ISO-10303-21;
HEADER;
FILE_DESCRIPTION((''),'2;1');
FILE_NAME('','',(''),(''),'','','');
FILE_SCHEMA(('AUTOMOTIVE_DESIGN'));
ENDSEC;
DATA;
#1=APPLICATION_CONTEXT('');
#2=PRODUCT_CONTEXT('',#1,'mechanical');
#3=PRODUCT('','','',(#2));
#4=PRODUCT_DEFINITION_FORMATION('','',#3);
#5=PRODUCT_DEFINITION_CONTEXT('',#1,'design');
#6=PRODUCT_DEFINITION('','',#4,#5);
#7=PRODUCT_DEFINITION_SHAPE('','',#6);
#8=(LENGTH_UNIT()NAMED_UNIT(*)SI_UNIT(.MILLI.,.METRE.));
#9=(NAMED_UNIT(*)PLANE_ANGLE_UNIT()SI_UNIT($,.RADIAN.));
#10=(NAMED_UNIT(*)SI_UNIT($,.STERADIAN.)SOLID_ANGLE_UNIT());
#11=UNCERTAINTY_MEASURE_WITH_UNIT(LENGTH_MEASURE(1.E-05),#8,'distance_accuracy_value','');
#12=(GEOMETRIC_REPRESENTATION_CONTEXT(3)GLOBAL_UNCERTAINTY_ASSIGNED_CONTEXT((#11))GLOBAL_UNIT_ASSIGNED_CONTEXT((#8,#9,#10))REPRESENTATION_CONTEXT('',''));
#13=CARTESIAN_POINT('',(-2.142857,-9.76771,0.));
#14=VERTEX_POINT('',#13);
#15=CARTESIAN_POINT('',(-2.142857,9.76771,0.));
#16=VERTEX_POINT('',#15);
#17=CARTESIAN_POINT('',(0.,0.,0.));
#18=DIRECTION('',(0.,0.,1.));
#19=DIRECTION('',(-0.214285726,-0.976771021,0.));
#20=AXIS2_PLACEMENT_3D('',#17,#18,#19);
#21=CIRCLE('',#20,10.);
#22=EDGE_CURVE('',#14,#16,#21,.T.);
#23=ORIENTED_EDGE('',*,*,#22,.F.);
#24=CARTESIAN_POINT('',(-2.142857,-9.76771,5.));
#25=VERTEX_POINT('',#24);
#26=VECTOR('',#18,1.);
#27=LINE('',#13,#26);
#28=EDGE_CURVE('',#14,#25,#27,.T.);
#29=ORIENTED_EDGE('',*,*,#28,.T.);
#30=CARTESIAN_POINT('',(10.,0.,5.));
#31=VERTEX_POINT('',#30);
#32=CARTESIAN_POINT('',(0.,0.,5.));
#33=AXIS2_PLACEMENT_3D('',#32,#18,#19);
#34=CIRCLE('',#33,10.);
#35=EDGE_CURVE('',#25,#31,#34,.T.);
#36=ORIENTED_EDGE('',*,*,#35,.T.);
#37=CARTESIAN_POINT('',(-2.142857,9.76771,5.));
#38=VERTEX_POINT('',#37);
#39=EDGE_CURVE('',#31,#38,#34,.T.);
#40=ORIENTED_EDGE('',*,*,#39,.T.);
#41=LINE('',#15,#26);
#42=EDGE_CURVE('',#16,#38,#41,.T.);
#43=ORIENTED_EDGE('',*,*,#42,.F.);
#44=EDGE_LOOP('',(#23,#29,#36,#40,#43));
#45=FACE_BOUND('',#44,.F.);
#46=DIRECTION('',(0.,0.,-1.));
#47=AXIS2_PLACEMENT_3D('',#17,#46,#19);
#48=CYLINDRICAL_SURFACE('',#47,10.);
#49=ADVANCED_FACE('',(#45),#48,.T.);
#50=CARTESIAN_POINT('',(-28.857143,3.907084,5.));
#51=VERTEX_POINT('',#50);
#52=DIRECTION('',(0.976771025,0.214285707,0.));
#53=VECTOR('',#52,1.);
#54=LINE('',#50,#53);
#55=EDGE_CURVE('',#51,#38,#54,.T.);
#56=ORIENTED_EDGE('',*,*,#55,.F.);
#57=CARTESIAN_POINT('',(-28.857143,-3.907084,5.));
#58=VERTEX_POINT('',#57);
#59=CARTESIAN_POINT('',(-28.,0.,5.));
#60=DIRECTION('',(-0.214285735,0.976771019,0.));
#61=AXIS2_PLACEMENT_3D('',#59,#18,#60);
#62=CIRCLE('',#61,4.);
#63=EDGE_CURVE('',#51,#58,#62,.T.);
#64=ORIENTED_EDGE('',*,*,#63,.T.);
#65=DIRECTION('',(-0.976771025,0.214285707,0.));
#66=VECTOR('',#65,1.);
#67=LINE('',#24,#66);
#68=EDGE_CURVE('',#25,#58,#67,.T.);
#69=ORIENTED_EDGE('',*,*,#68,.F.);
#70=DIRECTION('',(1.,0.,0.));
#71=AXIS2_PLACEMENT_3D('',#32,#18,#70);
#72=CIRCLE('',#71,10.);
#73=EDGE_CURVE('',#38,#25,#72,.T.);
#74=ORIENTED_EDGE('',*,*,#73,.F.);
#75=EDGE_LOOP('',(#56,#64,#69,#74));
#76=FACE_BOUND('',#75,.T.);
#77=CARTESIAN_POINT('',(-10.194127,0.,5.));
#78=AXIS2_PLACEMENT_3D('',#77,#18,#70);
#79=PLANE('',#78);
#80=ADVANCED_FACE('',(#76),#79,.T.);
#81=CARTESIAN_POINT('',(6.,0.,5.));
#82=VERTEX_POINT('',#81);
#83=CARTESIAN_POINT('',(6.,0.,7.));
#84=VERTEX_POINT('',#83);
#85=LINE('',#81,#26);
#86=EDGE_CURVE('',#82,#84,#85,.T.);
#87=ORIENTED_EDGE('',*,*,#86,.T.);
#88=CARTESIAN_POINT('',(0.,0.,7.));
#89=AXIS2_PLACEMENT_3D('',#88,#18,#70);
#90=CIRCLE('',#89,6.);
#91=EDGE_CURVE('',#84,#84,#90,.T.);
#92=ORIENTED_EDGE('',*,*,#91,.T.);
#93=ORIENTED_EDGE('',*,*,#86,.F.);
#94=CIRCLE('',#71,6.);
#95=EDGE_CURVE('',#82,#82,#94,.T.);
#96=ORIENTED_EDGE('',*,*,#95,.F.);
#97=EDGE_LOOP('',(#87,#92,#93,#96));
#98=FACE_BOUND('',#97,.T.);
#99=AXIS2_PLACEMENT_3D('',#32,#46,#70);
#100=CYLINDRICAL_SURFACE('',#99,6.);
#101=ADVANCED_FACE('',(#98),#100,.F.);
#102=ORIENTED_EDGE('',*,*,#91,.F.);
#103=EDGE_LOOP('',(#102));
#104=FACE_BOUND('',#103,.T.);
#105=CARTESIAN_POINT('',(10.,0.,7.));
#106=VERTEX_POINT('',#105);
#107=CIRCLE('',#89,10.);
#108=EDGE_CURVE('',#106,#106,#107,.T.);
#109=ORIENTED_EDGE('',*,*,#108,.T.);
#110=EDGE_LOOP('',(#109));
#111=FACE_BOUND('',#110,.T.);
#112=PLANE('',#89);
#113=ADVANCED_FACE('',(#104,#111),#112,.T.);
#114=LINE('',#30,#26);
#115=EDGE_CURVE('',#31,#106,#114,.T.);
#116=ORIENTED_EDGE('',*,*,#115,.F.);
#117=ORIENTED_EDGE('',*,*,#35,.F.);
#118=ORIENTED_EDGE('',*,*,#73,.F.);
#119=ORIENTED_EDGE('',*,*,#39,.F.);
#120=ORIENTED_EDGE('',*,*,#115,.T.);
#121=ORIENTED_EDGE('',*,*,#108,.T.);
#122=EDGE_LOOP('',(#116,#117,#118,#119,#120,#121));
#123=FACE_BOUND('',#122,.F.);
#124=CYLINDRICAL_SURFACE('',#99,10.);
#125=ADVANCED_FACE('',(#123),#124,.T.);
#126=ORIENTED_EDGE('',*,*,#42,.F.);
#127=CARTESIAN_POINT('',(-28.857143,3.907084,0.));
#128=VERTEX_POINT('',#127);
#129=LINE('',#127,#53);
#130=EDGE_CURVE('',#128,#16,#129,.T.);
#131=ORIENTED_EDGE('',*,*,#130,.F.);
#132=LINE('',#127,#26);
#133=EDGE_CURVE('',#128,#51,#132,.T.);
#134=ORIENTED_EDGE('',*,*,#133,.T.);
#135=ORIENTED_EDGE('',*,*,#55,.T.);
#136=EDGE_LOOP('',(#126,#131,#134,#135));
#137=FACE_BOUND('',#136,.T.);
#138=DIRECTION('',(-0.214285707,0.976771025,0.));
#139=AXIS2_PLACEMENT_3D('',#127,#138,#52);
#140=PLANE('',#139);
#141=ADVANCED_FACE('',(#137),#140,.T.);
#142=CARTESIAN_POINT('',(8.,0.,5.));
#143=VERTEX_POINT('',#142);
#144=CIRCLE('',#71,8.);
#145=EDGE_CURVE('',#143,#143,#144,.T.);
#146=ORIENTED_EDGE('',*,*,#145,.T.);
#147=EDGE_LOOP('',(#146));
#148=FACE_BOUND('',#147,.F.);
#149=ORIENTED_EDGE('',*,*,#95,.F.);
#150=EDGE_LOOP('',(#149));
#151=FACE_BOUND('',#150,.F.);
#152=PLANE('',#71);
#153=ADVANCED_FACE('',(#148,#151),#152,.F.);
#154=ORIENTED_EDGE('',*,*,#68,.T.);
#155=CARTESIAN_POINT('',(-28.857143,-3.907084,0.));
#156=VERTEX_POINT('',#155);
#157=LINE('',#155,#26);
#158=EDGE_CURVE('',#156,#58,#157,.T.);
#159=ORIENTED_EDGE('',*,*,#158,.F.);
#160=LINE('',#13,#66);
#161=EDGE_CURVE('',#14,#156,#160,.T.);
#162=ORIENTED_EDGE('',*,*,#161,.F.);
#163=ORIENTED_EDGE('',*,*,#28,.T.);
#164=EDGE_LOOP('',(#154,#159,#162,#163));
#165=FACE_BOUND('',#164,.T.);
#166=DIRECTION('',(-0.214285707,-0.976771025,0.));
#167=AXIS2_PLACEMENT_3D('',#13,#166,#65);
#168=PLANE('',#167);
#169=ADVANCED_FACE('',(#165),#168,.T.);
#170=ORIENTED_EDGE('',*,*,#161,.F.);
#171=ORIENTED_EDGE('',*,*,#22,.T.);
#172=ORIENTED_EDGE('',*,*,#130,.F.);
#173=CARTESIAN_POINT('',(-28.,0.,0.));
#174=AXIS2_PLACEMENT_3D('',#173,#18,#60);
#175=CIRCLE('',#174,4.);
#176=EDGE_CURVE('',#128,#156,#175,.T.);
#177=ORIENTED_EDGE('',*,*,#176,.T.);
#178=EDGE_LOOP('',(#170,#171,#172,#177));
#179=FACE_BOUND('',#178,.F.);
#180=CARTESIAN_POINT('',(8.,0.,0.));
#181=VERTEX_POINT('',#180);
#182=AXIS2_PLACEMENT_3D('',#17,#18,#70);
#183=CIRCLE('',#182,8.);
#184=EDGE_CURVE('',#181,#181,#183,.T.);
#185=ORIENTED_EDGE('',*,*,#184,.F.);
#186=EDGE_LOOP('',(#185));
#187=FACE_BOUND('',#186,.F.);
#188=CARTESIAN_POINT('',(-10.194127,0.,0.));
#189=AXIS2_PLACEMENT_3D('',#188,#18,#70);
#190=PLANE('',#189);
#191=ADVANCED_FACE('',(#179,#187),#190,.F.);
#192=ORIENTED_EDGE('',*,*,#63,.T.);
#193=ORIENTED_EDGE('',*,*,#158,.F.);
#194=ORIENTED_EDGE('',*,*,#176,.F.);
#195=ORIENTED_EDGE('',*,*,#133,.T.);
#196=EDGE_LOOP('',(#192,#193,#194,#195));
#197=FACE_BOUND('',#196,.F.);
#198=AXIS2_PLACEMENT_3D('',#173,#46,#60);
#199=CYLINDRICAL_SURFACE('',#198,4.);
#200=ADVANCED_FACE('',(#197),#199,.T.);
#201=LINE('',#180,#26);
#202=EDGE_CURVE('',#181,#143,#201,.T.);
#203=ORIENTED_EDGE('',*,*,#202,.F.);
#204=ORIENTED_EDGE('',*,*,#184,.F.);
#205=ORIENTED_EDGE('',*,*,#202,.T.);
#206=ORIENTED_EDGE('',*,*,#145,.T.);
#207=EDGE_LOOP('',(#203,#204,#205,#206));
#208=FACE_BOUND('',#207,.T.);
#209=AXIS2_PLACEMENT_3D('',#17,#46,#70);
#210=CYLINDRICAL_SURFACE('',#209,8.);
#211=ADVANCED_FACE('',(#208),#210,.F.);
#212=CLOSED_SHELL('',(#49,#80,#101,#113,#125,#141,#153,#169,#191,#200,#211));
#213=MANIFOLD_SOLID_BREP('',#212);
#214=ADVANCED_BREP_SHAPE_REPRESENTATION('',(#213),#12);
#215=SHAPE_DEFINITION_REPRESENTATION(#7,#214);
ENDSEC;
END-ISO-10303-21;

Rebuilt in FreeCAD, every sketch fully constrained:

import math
import FreeCAD as App
import Part
import Sketcher

V = App.Vector

doc = App.newDocument("Part")
body = doc.addObject("PartDesign::Body", "Body")

# Sketch on XY plane
sketch1 = doc.addObject("Sketcher::SketchObject", "Sketch")
body.addObject(sketch1)
sketch1.AttachmentSupport = (doc.XY_Plane, [""])
sketch1.MapMode = "FlatFace"
sketch1.addGeometry([
    Part.ArcOfCircle(Part.Circle(V(0, 0, 0), V(0, 0, 1), 10), math.radians(-102), math.radians(102)),  # 0
    Part.LineSegment(V(-2.1, 9.8, 0), V(-28.9, 3.9, 0)),  # 1
    Part.ArcOfCircle(Part.Circle(V(-28, 0, 0), V(0, 0, 1), 4), math.radians(102), math.radians(258)),  # 2
    Part.LineSegment(V(-28.9, -3.9, 0), V(-2.1, -9.8, 0)),  # 3
    Part.Circle(V(0, 0, 0), V(0, 0, 1), 8),  # 4
], False)
sketch1.addConstraint([
    Sketcher.Constraint("Tangent", 0, 2, 1, 1),
    Sketcher.Constraint("Tangent", 1, 2, 2, 1),
    Sketcher.Constraint("Tangent", 2, 2, 3, 1),
    Sketcher.Constraint("Tangent", 3, 2, 0, 1),
    Sketcher.Constraint("Coincident", 0, 3, -1, 1),
    Sketcher.Constraint("Coincident", 4, 3, -1, 1),
    Sketcher.Constraint("PointOnObject", 2, 3, -1),
    Sketcher.Constraint("Diameter", 4, 16.0),
    Sketcher.Constraint("Radius", 0, 10.0),
    Sketcher.Constraint("Radius", 2, 4.0),
    Sketcher.Constraint("DistanceX", 2, 3, -1, 1, 28.0),
])
pad1 = doc.addObject("PartDesign::Pad", "Pad")
body.addObject(pad1)
pad1.Profile = sketch1
pad1.Length = 5

# Sketch on XY plane
sketch2 = doc.addObject("Sketcher::SketchObject", "Sketch001")
body.addObject(sketch2)
sketch2.AttachmentSupport = (doc.XY_Plane, [""])
sketch2.MapMode = "FlatFace"
sketch2.AttachmentOffset = App.Placement(V(0, 0, 5), App.Rotation())
sketch2.addGeometry([
    Part.Circle(V(0, 0, 0), V(0, 0, 1), 10),
    Part.Circle(V(0, 0, 0), V(0, 0, 1), 6),
], False)
sketch2.addConstraint([
    Sketcher.Constraint("Coincident", 0, 3, -1, 1),
    Sketcher.Constraint("Coincident", 1, 3, -1, 1),
    Sketcher.Constraint("Diameter", 0, 20.0),
    Sketcher.Constraint("Diameter", 1, 12.0),
])
pad2 = doc.addObject("PartDesign::Pad", "Pad001")
body.addObject(pad2)
pad2.Profile = sketch2
pad2.Length = 2

doc.recompute()
